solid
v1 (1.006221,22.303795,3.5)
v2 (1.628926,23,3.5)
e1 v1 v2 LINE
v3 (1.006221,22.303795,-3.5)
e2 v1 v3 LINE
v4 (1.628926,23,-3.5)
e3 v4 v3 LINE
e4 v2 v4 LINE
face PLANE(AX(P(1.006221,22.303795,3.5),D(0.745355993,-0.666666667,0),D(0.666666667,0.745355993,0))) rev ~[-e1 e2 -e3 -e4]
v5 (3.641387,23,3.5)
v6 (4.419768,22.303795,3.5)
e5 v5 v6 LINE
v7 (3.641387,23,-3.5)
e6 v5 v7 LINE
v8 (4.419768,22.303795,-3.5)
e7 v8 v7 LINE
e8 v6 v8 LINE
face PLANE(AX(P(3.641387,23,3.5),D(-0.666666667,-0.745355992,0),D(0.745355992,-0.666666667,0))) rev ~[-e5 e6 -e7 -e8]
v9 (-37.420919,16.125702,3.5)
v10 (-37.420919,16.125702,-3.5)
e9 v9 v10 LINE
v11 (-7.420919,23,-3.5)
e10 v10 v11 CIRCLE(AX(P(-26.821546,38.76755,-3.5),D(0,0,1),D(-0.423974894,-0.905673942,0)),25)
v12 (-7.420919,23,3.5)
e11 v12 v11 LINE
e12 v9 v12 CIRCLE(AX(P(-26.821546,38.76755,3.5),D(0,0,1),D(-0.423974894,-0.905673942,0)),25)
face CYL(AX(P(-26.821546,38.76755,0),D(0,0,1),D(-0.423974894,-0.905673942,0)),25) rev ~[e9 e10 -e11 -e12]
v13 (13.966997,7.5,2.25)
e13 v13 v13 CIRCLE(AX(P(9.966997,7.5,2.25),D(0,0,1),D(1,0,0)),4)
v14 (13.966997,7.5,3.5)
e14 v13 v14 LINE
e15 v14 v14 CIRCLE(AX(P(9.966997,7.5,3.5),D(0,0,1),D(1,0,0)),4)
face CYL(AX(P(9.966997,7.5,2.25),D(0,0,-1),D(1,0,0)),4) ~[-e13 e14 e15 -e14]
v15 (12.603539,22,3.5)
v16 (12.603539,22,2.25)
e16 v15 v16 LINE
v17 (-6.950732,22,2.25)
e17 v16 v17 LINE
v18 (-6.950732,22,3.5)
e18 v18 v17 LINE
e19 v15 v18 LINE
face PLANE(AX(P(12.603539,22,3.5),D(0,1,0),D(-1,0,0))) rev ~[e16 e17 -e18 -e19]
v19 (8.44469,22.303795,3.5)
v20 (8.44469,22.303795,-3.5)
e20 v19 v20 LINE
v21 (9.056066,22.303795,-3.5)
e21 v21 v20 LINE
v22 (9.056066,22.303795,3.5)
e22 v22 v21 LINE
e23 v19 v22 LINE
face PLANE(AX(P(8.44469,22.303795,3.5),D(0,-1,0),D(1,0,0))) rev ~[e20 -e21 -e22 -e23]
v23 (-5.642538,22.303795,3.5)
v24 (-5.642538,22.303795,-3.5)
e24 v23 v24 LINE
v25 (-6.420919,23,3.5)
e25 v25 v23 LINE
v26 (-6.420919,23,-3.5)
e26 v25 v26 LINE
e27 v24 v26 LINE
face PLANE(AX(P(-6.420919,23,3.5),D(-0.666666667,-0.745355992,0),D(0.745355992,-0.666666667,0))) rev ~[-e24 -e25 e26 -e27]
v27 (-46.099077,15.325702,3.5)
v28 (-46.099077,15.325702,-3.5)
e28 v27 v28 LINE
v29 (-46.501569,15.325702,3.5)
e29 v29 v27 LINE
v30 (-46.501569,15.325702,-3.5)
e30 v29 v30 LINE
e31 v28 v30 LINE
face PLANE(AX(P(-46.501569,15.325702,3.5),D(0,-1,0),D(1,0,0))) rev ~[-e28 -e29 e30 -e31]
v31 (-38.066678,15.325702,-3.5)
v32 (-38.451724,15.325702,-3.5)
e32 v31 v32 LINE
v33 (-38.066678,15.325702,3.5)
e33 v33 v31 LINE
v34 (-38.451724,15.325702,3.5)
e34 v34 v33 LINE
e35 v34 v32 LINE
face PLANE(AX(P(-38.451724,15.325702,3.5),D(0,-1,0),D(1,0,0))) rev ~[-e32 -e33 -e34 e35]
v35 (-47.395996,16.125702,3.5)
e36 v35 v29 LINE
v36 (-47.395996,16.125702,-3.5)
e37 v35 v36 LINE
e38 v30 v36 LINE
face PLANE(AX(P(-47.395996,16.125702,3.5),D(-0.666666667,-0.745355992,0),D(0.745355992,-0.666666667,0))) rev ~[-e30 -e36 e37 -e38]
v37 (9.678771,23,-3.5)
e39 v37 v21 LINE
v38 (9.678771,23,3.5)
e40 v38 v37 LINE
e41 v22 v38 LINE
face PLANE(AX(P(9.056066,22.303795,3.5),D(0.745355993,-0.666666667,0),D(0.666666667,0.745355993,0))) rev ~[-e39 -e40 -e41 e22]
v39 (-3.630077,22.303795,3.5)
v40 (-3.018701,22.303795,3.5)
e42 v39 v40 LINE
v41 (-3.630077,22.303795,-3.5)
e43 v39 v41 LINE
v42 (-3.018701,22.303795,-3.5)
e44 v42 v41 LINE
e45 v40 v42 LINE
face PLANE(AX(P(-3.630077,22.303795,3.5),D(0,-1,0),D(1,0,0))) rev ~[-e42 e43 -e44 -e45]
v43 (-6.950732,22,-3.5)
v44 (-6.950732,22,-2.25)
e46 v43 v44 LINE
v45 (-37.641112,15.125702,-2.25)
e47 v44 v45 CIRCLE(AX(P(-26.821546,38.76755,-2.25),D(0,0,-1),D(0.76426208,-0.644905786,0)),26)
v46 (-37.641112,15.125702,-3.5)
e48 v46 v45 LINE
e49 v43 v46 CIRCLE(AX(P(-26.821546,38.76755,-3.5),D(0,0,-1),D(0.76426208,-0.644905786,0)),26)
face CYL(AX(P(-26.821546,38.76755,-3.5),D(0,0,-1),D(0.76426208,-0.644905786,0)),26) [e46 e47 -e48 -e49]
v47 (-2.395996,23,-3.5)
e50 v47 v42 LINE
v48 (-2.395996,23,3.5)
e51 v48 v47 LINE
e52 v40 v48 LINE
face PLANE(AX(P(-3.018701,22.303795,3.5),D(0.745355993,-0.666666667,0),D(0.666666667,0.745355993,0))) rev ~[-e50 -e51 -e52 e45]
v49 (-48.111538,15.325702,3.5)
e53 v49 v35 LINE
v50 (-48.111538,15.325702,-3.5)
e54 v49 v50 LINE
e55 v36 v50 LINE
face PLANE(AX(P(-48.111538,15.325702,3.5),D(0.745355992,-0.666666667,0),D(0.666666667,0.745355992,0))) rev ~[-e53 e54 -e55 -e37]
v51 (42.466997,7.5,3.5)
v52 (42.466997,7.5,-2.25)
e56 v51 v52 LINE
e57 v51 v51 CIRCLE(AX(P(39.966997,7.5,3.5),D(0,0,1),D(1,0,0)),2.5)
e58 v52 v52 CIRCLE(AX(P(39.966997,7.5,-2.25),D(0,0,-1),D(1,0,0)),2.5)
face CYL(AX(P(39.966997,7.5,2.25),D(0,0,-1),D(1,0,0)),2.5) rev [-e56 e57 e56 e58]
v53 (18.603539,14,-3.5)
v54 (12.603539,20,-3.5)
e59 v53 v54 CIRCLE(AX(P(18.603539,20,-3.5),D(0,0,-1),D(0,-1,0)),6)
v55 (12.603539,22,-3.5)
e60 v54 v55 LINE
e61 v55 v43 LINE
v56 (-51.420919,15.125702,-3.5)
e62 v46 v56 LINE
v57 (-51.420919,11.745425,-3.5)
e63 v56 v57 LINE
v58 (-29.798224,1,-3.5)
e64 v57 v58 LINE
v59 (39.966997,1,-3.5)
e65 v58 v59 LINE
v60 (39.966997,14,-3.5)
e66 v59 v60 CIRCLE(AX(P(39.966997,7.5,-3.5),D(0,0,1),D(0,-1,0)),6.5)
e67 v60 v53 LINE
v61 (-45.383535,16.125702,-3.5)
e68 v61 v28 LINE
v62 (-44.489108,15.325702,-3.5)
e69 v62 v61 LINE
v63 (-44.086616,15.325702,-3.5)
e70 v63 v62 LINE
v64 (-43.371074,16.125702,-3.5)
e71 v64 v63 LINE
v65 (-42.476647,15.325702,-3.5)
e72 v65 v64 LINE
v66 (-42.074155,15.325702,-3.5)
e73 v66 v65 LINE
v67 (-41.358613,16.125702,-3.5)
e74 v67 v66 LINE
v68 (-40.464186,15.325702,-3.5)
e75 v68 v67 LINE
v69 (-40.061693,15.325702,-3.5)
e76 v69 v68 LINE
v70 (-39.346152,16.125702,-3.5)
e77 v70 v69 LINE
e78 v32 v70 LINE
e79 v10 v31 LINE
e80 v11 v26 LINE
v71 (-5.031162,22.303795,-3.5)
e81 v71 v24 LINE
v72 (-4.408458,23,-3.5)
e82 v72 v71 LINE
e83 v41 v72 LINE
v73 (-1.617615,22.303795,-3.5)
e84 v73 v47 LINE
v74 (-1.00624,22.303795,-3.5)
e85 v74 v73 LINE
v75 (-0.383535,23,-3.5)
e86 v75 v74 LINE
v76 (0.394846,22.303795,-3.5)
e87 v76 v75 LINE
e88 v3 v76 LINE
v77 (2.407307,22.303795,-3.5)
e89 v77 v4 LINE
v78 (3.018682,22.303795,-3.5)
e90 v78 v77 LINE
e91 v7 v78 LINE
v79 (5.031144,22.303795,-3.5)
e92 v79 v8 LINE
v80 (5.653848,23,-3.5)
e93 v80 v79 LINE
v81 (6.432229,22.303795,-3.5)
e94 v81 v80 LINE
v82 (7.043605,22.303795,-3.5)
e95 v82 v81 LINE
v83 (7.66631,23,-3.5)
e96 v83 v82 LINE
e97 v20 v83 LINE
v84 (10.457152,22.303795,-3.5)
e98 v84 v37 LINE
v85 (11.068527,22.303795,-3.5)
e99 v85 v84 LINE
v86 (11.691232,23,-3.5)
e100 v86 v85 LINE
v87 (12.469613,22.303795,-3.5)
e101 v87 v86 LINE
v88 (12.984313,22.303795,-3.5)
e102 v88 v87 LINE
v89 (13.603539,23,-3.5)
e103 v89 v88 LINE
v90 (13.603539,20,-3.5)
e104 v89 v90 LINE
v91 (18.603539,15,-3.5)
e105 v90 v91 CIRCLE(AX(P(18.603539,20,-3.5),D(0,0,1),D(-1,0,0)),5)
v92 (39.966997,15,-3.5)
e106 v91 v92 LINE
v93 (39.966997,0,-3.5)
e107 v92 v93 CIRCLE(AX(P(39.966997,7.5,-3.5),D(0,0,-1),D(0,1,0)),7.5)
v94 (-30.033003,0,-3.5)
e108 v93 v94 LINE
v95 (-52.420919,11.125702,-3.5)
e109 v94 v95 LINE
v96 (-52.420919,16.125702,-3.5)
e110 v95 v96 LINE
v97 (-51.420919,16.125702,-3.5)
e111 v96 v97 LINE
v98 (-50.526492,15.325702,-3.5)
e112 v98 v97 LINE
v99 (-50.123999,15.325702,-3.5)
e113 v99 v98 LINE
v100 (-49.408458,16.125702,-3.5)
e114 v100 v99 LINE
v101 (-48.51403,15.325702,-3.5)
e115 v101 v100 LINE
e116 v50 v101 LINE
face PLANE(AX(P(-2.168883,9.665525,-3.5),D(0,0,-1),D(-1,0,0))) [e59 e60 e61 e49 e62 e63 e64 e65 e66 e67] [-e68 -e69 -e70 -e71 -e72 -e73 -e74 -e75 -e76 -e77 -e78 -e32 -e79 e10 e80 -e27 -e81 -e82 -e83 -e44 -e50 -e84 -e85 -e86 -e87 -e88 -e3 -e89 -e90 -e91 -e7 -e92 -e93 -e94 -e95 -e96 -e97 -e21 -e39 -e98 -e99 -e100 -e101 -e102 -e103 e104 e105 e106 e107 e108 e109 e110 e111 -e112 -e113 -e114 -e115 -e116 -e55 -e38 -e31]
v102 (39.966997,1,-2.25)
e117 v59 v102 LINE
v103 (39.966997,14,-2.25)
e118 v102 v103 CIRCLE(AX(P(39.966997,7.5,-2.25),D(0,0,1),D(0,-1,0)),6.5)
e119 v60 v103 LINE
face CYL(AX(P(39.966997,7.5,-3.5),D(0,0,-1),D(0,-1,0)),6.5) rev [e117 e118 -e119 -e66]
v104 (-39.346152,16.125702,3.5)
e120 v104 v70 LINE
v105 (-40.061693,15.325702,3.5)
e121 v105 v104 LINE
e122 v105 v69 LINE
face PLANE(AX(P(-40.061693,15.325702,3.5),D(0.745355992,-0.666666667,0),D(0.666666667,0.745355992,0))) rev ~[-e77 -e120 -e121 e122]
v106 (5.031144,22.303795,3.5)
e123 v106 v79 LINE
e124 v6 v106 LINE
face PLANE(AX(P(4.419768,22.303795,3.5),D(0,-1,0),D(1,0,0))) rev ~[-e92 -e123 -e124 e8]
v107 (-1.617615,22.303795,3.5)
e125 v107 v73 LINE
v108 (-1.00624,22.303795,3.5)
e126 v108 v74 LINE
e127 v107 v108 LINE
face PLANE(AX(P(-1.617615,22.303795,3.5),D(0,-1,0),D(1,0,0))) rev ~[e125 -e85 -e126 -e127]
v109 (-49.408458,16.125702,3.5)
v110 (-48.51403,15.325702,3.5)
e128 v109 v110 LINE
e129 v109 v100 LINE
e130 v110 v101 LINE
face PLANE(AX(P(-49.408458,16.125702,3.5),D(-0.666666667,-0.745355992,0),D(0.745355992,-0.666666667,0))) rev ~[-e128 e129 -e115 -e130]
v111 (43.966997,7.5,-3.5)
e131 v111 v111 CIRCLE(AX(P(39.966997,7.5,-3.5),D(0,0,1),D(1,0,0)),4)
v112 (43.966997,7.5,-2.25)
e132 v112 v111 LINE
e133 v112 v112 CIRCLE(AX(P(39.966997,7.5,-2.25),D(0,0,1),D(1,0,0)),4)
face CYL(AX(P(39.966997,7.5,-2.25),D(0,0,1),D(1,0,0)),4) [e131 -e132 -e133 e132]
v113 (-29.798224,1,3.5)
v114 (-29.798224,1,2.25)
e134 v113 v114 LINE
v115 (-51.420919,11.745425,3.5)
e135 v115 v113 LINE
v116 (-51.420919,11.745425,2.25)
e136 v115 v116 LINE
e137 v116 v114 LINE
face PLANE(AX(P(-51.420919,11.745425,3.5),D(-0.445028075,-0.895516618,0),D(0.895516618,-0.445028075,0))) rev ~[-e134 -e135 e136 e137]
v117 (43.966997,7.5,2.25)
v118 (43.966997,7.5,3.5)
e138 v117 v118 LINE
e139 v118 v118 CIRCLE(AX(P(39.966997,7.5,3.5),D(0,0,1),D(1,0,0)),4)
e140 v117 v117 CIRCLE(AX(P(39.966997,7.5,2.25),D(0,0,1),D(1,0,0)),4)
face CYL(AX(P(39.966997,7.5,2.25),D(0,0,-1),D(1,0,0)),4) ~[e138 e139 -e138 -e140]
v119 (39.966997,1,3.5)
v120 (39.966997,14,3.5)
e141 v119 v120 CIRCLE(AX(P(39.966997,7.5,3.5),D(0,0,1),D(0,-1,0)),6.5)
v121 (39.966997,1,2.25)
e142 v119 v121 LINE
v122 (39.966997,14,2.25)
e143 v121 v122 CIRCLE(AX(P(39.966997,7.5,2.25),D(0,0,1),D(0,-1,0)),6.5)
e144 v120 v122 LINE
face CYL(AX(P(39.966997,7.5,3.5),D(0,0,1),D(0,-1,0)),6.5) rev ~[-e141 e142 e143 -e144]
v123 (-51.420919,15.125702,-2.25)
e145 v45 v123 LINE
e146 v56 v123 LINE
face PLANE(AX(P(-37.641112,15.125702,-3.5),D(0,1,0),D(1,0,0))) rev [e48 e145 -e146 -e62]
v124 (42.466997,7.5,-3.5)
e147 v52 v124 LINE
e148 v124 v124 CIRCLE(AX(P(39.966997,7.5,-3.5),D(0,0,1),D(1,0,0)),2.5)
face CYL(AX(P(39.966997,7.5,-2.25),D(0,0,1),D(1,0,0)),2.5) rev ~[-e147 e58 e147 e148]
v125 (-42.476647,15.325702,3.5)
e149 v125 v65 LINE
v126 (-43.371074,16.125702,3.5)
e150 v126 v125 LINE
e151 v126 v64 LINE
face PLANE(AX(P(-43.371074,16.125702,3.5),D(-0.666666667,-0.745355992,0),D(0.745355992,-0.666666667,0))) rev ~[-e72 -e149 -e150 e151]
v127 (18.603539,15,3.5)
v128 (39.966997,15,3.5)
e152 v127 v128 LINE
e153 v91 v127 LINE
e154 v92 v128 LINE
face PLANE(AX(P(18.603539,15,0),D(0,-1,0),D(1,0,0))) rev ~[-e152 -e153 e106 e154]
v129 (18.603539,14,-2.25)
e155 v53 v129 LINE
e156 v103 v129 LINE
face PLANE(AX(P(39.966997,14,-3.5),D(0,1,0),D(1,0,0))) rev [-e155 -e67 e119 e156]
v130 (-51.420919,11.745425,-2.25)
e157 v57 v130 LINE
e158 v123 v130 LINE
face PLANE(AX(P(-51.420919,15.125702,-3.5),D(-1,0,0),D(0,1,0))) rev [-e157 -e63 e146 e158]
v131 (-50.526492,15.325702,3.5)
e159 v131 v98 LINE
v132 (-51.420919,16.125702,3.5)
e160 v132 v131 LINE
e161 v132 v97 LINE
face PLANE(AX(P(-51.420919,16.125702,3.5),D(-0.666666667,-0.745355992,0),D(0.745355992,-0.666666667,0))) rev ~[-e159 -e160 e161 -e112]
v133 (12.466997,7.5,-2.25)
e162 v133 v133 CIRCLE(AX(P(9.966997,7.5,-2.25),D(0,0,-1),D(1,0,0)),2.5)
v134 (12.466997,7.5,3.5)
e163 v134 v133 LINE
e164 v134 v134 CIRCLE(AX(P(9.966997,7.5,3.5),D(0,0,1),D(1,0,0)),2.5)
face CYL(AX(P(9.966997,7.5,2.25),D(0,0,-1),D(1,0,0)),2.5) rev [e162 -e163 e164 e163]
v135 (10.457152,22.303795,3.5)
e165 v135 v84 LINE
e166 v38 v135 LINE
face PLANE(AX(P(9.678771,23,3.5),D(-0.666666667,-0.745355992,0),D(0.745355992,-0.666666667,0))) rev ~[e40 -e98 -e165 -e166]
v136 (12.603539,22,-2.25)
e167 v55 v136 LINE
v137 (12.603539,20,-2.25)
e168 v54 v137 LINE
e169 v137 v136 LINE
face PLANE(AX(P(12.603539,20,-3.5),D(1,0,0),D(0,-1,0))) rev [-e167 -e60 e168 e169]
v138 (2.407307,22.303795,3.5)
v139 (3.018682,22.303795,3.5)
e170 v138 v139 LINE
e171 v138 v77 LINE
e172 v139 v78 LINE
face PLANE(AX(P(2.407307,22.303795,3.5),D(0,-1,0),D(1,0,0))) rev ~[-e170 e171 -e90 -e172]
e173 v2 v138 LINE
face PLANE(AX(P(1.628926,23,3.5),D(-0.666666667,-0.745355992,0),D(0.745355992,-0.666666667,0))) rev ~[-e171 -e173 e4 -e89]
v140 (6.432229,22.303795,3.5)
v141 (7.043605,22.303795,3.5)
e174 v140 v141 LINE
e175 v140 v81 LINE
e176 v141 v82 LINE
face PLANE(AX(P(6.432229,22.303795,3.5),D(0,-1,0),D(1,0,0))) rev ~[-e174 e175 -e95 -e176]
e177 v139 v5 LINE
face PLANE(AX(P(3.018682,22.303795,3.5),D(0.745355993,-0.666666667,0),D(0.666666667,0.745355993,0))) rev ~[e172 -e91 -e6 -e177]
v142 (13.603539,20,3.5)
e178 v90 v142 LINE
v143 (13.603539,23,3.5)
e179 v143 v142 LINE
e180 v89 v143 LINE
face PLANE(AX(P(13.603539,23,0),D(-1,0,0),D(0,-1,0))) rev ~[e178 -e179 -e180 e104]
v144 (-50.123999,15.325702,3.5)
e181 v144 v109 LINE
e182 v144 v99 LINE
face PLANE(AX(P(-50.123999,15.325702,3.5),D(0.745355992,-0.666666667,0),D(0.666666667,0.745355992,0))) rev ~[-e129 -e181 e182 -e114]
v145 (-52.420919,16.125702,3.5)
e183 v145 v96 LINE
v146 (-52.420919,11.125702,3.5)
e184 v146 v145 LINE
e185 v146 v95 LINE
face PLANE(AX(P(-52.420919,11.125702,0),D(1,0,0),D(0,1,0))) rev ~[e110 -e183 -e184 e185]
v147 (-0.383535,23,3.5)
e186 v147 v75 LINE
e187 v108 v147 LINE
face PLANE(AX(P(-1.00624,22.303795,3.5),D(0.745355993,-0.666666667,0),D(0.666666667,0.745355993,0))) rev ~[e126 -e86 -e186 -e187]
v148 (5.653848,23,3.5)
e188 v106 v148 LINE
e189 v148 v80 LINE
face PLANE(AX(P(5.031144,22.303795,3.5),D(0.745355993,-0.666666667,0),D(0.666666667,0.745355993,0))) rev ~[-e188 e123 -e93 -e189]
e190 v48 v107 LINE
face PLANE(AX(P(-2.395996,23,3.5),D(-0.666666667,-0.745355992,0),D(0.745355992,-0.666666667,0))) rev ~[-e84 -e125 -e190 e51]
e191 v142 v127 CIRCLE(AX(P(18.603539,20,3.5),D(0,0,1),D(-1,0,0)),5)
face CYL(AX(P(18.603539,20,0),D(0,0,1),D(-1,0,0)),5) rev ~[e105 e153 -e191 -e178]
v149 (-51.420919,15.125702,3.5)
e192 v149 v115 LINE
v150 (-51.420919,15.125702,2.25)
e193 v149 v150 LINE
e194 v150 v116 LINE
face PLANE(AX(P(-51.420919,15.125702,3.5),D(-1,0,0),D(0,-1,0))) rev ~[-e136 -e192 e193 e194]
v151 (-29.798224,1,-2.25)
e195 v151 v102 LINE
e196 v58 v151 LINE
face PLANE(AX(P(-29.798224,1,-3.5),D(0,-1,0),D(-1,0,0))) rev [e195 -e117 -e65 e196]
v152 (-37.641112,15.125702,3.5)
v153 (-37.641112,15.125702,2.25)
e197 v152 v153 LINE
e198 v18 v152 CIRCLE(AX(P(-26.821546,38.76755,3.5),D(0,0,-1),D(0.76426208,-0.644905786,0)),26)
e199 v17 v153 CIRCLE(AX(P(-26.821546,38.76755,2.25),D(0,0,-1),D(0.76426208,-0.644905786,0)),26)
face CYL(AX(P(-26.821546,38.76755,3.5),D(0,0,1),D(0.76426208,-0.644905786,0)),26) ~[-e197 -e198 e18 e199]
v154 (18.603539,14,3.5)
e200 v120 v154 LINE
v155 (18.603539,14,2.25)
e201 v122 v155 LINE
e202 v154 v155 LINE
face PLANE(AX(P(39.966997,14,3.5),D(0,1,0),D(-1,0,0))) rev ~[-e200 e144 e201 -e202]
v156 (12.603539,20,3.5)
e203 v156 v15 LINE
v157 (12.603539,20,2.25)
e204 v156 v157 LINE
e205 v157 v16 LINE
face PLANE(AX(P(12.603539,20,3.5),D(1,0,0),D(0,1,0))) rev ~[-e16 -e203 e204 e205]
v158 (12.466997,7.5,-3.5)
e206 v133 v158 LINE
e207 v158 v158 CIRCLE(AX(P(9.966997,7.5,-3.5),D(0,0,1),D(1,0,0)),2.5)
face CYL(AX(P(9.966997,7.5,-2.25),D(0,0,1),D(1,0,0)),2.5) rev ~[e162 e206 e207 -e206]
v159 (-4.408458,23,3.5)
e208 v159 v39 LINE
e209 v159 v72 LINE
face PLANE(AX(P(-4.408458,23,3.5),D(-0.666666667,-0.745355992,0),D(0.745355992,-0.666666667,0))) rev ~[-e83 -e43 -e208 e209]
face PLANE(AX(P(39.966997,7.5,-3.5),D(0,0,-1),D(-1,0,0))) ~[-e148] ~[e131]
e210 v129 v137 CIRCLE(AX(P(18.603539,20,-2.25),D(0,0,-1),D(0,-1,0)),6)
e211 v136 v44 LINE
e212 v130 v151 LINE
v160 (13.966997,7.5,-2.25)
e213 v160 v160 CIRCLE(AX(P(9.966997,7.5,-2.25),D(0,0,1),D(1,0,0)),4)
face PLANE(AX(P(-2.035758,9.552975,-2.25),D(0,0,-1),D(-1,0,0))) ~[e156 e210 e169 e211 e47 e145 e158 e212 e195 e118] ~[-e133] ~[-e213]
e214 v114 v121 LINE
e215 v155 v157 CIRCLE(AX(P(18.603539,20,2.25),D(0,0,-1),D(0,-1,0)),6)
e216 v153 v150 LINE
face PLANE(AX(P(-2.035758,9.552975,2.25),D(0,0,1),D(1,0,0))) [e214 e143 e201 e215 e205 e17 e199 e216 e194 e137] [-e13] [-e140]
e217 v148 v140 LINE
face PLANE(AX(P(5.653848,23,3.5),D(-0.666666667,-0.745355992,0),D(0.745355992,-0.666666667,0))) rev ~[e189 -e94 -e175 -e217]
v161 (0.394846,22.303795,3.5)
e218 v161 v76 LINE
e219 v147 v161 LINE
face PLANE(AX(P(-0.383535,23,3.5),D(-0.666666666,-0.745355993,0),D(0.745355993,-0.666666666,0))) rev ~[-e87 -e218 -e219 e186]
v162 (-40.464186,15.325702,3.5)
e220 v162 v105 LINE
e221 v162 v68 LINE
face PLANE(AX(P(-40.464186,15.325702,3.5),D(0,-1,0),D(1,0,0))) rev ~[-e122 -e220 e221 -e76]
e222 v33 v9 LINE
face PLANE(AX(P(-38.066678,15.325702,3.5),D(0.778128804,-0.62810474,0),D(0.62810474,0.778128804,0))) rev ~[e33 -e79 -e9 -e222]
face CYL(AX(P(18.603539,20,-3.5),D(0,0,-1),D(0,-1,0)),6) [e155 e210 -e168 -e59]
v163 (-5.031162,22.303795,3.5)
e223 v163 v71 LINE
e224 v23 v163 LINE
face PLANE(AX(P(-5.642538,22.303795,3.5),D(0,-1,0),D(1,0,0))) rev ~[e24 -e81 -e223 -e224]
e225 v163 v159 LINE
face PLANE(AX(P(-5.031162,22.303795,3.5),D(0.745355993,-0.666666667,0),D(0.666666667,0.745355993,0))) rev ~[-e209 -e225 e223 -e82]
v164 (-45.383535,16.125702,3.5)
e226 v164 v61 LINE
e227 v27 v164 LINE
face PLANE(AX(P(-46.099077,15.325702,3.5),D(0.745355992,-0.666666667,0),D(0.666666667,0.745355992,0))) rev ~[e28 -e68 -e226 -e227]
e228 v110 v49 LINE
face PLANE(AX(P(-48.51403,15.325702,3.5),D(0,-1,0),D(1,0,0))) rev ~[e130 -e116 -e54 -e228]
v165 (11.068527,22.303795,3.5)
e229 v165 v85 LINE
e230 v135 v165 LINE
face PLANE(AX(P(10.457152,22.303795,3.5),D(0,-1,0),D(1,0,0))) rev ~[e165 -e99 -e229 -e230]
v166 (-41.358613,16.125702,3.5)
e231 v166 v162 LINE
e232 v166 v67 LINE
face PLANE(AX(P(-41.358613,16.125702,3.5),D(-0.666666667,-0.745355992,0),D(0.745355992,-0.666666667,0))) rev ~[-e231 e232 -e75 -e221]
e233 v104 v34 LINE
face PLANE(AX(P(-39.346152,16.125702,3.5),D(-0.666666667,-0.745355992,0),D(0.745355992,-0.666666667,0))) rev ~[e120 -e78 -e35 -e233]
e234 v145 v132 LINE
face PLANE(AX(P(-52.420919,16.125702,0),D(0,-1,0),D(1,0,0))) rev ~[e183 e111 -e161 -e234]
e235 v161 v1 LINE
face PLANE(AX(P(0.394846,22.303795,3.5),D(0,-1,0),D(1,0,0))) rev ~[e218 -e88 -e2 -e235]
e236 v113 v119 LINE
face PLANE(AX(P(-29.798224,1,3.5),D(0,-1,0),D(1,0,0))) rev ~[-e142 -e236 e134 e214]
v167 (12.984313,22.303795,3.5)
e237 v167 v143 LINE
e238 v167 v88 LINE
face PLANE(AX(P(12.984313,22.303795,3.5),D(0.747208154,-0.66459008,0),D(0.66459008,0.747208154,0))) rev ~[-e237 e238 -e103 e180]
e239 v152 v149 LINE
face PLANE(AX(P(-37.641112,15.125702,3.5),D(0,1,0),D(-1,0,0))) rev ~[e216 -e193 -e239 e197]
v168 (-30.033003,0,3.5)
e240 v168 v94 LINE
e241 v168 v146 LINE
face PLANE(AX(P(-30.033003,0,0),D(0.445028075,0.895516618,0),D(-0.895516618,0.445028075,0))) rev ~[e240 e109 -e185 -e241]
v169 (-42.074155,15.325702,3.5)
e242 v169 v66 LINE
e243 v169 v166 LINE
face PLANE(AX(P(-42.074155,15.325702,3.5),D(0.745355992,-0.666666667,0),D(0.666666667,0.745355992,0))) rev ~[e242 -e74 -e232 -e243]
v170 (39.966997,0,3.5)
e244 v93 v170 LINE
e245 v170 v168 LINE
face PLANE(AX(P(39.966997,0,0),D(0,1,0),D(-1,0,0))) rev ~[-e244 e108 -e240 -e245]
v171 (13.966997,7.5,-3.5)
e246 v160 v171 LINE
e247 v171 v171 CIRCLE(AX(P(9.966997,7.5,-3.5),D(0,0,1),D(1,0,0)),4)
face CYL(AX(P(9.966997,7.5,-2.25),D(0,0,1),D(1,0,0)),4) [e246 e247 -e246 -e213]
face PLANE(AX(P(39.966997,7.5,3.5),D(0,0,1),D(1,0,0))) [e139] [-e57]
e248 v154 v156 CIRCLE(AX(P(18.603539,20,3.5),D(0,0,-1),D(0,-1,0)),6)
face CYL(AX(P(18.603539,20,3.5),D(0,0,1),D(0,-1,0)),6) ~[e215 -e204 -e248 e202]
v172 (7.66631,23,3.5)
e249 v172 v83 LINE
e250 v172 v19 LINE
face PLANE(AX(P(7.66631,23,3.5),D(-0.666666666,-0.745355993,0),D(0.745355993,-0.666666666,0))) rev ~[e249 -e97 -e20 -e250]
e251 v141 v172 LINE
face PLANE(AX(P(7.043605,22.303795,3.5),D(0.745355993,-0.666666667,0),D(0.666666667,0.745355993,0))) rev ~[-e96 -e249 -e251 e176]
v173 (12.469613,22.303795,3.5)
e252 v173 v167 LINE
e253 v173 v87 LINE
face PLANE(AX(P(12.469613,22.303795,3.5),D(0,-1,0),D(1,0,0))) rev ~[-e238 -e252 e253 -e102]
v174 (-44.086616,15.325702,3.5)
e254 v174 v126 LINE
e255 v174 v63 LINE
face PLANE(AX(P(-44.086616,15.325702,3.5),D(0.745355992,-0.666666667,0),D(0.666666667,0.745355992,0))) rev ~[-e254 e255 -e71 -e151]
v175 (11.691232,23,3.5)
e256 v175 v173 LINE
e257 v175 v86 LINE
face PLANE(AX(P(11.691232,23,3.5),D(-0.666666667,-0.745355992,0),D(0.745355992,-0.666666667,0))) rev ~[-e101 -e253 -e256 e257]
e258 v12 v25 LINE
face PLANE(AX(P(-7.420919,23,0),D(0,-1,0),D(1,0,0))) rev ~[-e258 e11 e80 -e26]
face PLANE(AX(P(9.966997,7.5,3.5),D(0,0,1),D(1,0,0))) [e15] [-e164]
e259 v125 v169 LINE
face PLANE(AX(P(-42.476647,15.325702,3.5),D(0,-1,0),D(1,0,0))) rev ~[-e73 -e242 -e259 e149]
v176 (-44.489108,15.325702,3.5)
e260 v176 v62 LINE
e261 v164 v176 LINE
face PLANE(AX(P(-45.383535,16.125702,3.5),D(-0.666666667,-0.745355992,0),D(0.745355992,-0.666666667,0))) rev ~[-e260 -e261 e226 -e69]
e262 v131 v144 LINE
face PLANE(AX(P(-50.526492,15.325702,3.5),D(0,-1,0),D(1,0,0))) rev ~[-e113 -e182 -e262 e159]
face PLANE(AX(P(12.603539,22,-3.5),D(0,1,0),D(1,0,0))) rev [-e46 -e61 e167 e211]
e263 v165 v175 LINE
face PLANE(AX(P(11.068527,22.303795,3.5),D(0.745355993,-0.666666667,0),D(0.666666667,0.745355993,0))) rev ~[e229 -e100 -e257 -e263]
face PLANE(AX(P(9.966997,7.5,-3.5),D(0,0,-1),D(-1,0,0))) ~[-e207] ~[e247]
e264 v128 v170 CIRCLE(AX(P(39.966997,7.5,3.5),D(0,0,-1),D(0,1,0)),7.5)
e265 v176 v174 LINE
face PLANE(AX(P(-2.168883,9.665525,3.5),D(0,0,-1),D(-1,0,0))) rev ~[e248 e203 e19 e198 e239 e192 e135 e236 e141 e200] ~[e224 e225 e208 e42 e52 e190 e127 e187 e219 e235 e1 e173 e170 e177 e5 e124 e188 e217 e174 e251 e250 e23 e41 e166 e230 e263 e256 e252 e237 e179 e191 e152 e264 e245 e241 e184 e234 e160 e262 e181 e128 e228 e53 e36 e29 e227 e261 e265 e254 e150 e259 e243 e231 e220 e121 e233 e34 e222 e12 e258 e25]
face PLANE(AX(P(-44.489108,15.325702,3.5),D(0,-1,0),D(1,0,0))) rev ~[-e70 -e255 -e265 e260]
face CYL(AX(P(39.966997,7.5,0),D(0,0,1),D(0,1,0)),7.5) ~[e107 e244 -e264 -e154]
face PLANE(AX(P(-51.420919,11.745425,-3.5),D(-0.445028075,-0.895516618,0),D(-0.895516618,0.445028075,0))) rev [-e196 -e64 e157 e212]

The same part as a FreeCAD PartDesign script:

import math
import FreeCAD as App
import Part
import Sketcher
from FreeCAD import Vector

doc = App.newDocument("Part")
body = doc.addObject("PartDesign::Body", "Body")

# Sketch on XY plane
sketch1 = body.newObject("Sketcher::SketchObject", "Sketch")
sketch1.AttachmentSupport = (doc.getObject("XY_Plane"), [""])
sketch1.MapMode = "FlatFace"
sketch1.addGeometry(Part.LineSegment(Vector(-30, 0, 0), Vector(40, 0, 0)), False)
sketch1.addGeometry(Part.ArcOfCircle(Part.Circle(Vector(40, 7.5, 0), Vector(0, 0, 1), 7.5), math.radians(-90), math.radians(90)), False)
sketch1.addGeometry(Part.LineSegment(Vector(40, 15, 0), Vector(18.6, 15, 0)), False)
sketch1.addGeometry(Part.ArcOfCircle(Part.Circle(Vector(18.6, 20, 0), Vector(0, 0, 1), 5), math.radians(180), math.radians(270)), False)
sketch1.addGeometry(Part.LineSegment(Vector(13.6, 20, 0), Vector(13.6, 23, 0)), False)
sketch1.addGeometry(Part.LineSegment(Vector(13.6, 23, 0), Vector(-7.4, 23, 0)), False)
sketch1.addGeometry(Part.ArcOfCircle(Part.Circle(Vector(-26.8, 38.8, 0), Vector(0, 0, 1), 25), math.radians(-115), math.radians(-39)), False)
sketch1.addGeometry(Part.LineSegment(Vector(-37.4, 16.1, 0), Vector(-52.4, 16.1, 0)), False)
sketch1.addGeometry(Part.LineSegment(Vector(-52.4, 16.1, 0), Vector(-52.4, 11.1, 0)), False)
sketch1.addGeometry(Part.LineSegment(Vector(-52.4, 11.1, 0), Vector(-30, 0, 0)), False)
sketch1.addGeometry(Part.Circle(Vector(40, 7.5, 0), Vector(0, 0, 1), 2.5), False)
sketch1.addGeometry(Part.Circle(Vector(10, 7.5, 0), Vector(0, 0, 1), 2.5), False)
sketch1.addConstraint(Sketcher.Constraint("Tangent", 0, 2, 1, 1))
sketch1.addConstraint(Sketcher.Constraint("Tangent", 1, 2, 2, 1))
sketch1.addConstraint(Sketcher.Constraint("Tangent", 2, 2, 3, 2))
sketch1.addConstraint(Sketcher.Constraint("Tangent", 3, 1, 4, 1))
sketch1.addConstraint(Sketcher.Constraint("Coincident", 4, 2, 5, 1))
sketch1.addConstraint(Sketcher.Constraint("Coincident", 5, 2, 6, 2))
sketch1.addConstraint(Sketcher.Constraint("Coincident", 6, 1, 7, 1))
sketch1.addConstraint(Sketcher.Constraint("Coincident", 7, 2, 8, 1))
sketch1.addConstraint(Sketcher.Constraint("Coincident", 8, 2, 9, 1))
sketch1.addConstraint(Sketcher.Constraint("Coincident", 9, 2, 0, 1))
sketch1.addConstraint(Sketcher.Constraint("Horizontal", 0))
sketch1.addConstraint(Sketcher.Constraint("Horizontal", 2))
sketch1.addConstraint(Sketcher.Constraint("Vertical", 4))
sketch1.addConstraint(Sketcher.Constraint("Horizontal", 5))
sketch1.addConstraint(Sketcher.Constraint("Horizontal", 7))
sketch1.addConstraint(Sketcher.Constraint("Vertical", 8))
sketch1.addConstraint(Sketcher.Constraint("Coincident", 10, 3, 1, 3))
sketch1.addConstraint(Sketcher.Constraint("Equal", 10, 11))
sketch1.addConstraint(Sketcher.Constraint("PointOnObject", 0, 2, -1))
sketch1.addConstraint(Sketcher.Constraint("Horizontal", 10, 3, 11, 3))
sketch1.addConstraint(Sketcher.Constraint("Diameter", 10, 5.0))
sketch1.addConstraint(Sketcher.Constraint("Radius", 3, 5.0))
sketch1.addConstraint(Sketcher.Constraint("Radius", 6, 25.0))
sketch1.addConstraint(Sketcher.Constraint("Radius", 1, 7.5))
sketch1.addConstraint(Sketcher.Constraint("DistanceX", 0, 1, 0, 2, 70.0))
sketch1.addConstraint(Sketcher.Constraint("DistanceX", 7, 2, 7, 1, 15.0))
sketch1.addConstraint(Sketcher.Constraint("DistanceY", 4, 1, 4, 2, 3.0))
sketch1.addConstraint(Sketcher.Constraint("DistanceY", 8, 2, 8, 1, 5.0))
sketch1.addConstraint(Sketcher.Constraint("Distance", 9, 25.0))
sketch1.addConstraint(Sketcher.Constraint("DistanceX", 11, 3, 1, 3, 30.0))
sketch1.addConstraint(Sketcher.Constraint("DistanceX", 6, 1, 5, 2, 30.0))
sketch1.addConstraint(Sketcher.Constraint("DistanceY", -1, 1, 6, 1, 16.125702))
sketch1.addConstraint(Sketcher.Constraint("DistanceX", 2, 2, 2, 1, 21.363458))
sketch1.addConstraint(Sketcher.Constraint("DistanceX", -1, 1, 3, 3, 18.603539))
pad1 = body.newObject("PartDesign::Pad", "Pad")
pad1.Profile = sketch1
pad1.Length = 7
pad1.Midplane = True

# Sketch on XY plane
sketch2 = body.newObject("Sketcher::SketchObject", "Sketch001")
sketch2.AttachmentSupport = (doc.getObject("XY_Plane"), [""])
sketch2.MapMode = "FlatFace"
sketch2.AttachmentOffset = App.Placement(Vector(0, 0, 3.5), App.Rotation())
sketch2.addGeometry(Part.LineSegment(Vector(40, 14, 0), Vector(18.6, 14, 0)), False)
sketch2.addGeometry(Part.ArcOfCircle(Part.Circle(Vector(18.6, 20, 0), Vector(0, 0, 1), 6), math.radians(180), math.radians(270)), False)
sketch2.addGeometry(Part.LineSegment(Vector(12.6, 20, 0), Vector(12.6, 22, 0)), False)
sketch2.addGeometry(Part.LineSegment(Vector(12.6, 22, 0), Vector(-7, 22, 0)), False)
sketch2.addGeometry(Part.ArcOfCircle(Part.Circle(Vector(-26.8, 38.8, 0), Vector(0, 0, 1), 26), math.radians(-115), math.radians(-40)), False)
sketch2.addGeometry(Part.LineSegment(Vector(-37.6, 15.1, 0), Vector(-51.4, 15.1, 0)), False)
sketch2.addGeometry(Part.LineSegment(Vector(-51.4, 15.1, 0), Vector(-51.4, 11.7, 0)), False)
sketch2.addGeometry(Part.LineSegment(Vector(-51.4, 11.7, 0), Vector(-29.8, 1, 0)), False)
sketch2.addGeometry(Part.LineSegment(Vector(-29.8, 1, 0), Vector(40, 1, 0)), False)
sketch2.addGeometry(Part.ArcOfCircle(Part.Circle(Vector(40, 7.5, 0), Vector(0, 0, 1), 6.5), math.radians(-90), math.radians(90)), False)
sketch2.addConstraint(Sketcher.Constraint("Tangent", 0, 2, 1, 2))
sketch2.addConstraint(Sketcher.Constraint("Tangent", 1, 1, 2, 1))
sketch2.addConstraint(Sketcher.Constraint("Coincident", 2, 2, 3, 1))
sketch2.addConstraint(Sketcher.Constraint("Coincident", 3, 2, 4, 2))
sketch2.addConstraint(Sketcher.Constraint("Coincident", 4, 1, 5, 1))
sketch2.addConstraint(Sketcher.Constraint("Coincident", 5, 2, 6, 1))
sketch2.addConstraint(Sketcher.Constraint("Coincident", 6, 2, 7, 1))
sketch2.addConstraint(Sketcher.Constraint("Coincident", 7, 2, 8, 1))
sketch2.addConstraint(Sketcher.Constraint("Tangent", 8, 2, 9, 1))
sketch2.addConstraint(Sketcher.Constraint("Tangent", 9, 2, 0, 1))
sketch2.addConstraint(Sketcher.Constraint("Horizontal", 0))
sketch2.addConstraint(Sketcher.Constraint("Vertical", 2))
sketch2.addConstraint(Sketcher.Constraint("Horizontal", 3))
sketch2.addConstraint(Sketcher.Constraint("Horizontal", 5))
sketch2.addConstraint(Sketcher.Constraint("Vertical", 6))
sketch2.addConstraint(Sketcher.Constraint("Horizontal", 8))
sketch2.addConstraint(Sketcher.Constraint("Radius", 1, 6.0))
sketch2.addConstraint(Sketcher.Constraint("Radius", 4, 26.0))
sketch2.addConstraint(Sketcher.Constraint("Radius", 9, 6.5))
sketch2.addConstraint(Sketcher.Constraint("DistanceY", 2, 1, 2, 2, 2.0))
sketch2.addConstraint(Sketcher.Constraint("DistanceY", -1, 1, 1, 3, 20.0))
sketch2.addConstraint(Sketcher.Constraint("Distance", 7, 24.145498))
sketch2.addConstraint(Sketcher.Constraint("DistanceX", 3, 2, 3, 1, 19.554271))
sketch2.addConstraint(Sketcher.Constraint("DistanceX", 8, 1, 8, 2, 69.765221))
sketch2.addConstraint(Sketcher.Constraint("DistanceY", -1, 1, 4, 1, 15.125702))
sketch2.addConstraint(Sketcher.Constraint("DistanceX", 0, 2, 0, 1, 21.363458))
sketch2.addConstraint(Sketcher.Constraint("DistanceX", 5, 2, 5, 1, 13.779807))
sketch2.addConstraint(Sketcher.Constraint("DistanceY", 6, 2, 6, 1, 3.380277))
sketch2.addConstraint(Sketcher.Constraint("DistanceX", -1, 1, 1, 3, 18.603539))
pocket1 = body.newObject("PartDesign::Pocket", "Pocket")
pocket1.Profile = sketch2
pocket1.Length = 1.25

# Sketch on XY plane
sketch3 = body.newObject("Sketcher::SketchObject", "Sketch002")
sketch3.AttachmentSupport = (doc.getObject("XY_Plane"), [""])
sketch3.MapMode = "FlatFace"
sketch3.AttachmentOffset = App.Placement(Vector(0, 0, 2.25), App.Rotation())
sketch3.addGeometry(Part.Circle(Vector(10, 7.5, 0), Vector(0, 0, 1), 4), False)
sketch3.addGeometry(Part.Circle(Vector(10, 7.5, 0), Vector(0, 0, 1), 2.5), False)
sketch3.addGeometry(Part.Circle(Vector(40, 7.5, 0), Vector(0, 0, 1), 4), False)
sketch3.addGeometry(Part.Circle(Vector(40, 7.5, 0), Vector(0, 0, 1), 2.5), False)
sketch3.addConstraint(Sketcher.Constraint("Coincident", 1, 3, 0, 3))
sketch3.addConstraint(Sketcher.Constraint("Coincident", 3, 3, 2, 3))
sketch3.addConstraint(Sketcher.Constraint("Equal", 0, 2))
sketch3.addConstraint(Sketcher.Constraint("Equal", 1, 3))
sketch3.addConstraint(Sketcher.Constraint("Horizontal", 1, 3, 2, 3))
sketch3.addConstraint(Sketcher.Constraint("Diameter", 0, 8.0))
sketch3.addConstraint(Sketcher.Constraint("Diameter", 1, 5.0))
sketch3.addConstraint(Sketcher.Constraint("DistanceX", 0, 3, 2, 3, 30.0))
sketch3.addConstraint(Sketcher.Constraint("DistanceY", -1, 1, 0, 3, 7.5))
sketch3.addConstraint(Sketcher.Constraint("DistanceX", -1, 1, 0, 3, 9.966997))
pad2 = body.newObject("PartDesign::Pad", "Pad001")
pad2.Profile = sketch3
pad2.Length = 1.25
doc.recompute()

mirrored = body.newObject("PartDesign::Mirrored", "Mirrored")
mirrored.Originals = [pocket1, pad2]
mirrored.MirrorPlane = (doc.getObject("XY_Plane"), [""])
body.Tip = mirrored

# Sketch on XY plane
sketch4 = body.newObject("Sketcher::SketchObject", "Sketch003")
sketch4.AttachmentSupport = (doc.getObject("XY_Plane"), [""])
sketch4.MapMode = "FlatFace"
sketch4.AttachmentOffset = App.Placement(Vector(0, 0, 3.5), App.Rotation())
sketch4.addGeometry(Part.LineSegment(Vector(-43.37, 16.13, 0), Vector(-45.38, 16.13, 0)), False)
sketch4.addGeometry(Part.LineSegment(Vector(-45.38, 16.13, 0), Vector(-44.49, 15.33, 0)), False)
sketch4.addGeometry(Part.LineSegment(Vector(-44.49, 15.33, 0), Vector(-44.09, 15.33, 0)), False)
sketch4.addGeometry(Part.LineSegment(Vector(-44.09, 15.33, 0), Vector(-43.37, 16.13, 0)), False)
sketch4.addGeometry(Part.LineSegment(Vector(-41.36, 16.13, 0), Vector(-43.37, 16.13, 0)), False)
sketch4.addGeometry(Part.LineSegment(Vector(-43.37, 16.13, 0), Vector(-42.48, 15.33, 0)), False)
sketch4.addGeometry(Part.LineSegment(Vector(-42.48, 15.33, 0), Vector(-42.07, 15.33, 0)), False)
sketch4.addGeometry(Part.LineSegment(Vector(-42.07, 15.33, 0), Vector(-41.36, 16.13, 0)), False)
sketch4.addGeometry(Part.LineSegment(Vector(-39.35, 16.13, 0), Vector(-41.36, 16.13, 0)), False)
sketch4.addGeometry(Part.LineSegment(Vector(-41.36, 16.13, 0), Vector(-40.46, 15.33, 0)), False)
sketch4.addGeometry(Part.LineSegment(Vector(-40.46, 15.33, 0), Vector(-40.06, 15.33, 0)), False)
sketch4.addGeometry(Part.LineSegment(Vector(-40.06, 15.33, 0), Vector(-39.35, 16.13, 0)), False)
sketch4.addGeometry(Part.LineSegment(Vector(-37.42, 16.13, 0), Vector(-39.35, 16.13, 0)), False)
sketch4.addGeometry(Part.LineSegment(Vector(-39.35, 16.13, 0), Vector(-38.45, 15.33, 0)), False)
sketch4.addGeometry(Part.LineSegment(Vector(-38.45, 15.33, 0), Vector(-38.07, 15.33, 0)), False)
sketch4.addGeometry(Part.LineSegment(Vector(-38.07, 15.33, 0), Vector(-37.42, 16.13, 0)), False)
sketch4.addGeometry(Part.LineSegment(Vector(-45.38, 16.13, 0), Vector(-47.4, 16.13, 0)), False)
sketch4.addGeometry(Part.LineSegment(Vector(-47.4, 16.13, 0), Vector(-46.5, 15.33, 0)), False)
sketch4.addGeometry(Part.LineSegment(Vector(-46.5, 15.33, 0), Vector(-46.1, 15.33, 0)), False)
sketch4.addGeometry(Part.LineSegment(Vector(-46.1, 15.33, 0), Vector(-45.38, 16.13, 0)), False)
sketch4.addGeometry(Part.LineSegment(Vector(-47.4, 16.13, 0), Vector(-49.41, 16.13, 0)), False)
sketch4.addGeometry(Part.LineSegment(Vector(-49.41, 16.13, 0), Vector(-48.51, 15.33, 0)), False)
sketch4.addGeometry(Part.LineSegment(Vector(-48.51, 15.33, 0), Vector(-48.11, 15.33, 0)), False)
sketch4.addGeometry(Part.LineSegment(Vector(-48.11, 15.33, 0), Vector(-47.4, 16.13, 0)), False)
sketch4.addGeometry(Part.LineSegment(Vector(-49.41, 16.13, 0), Vector(-51.42, 16.13, 0)), False)
sketch4.addGeometry(Part.LineSegment(Vector(-51.42, 16.13, 0), Vector(-50.53, 15.33, 0)), False)
sketch4.addGeometry(Part.LineSegment(Vector(-50.53, 15.33, 0), Vector(-50.12, 15.33, 0)), False)
sketch4.addGeometry(Part.LineSegment(Vector(-50.12, 15.33, 0), Vector(-49.41, 16.13, 0)), False)
sketch4.addConstraint(Sketcher.Constraint("Coincident", 0, 2, 1, 1))
sketch4.addConstraint(Sketcher.Constraint("Coincident", 1, 2, 2, 1))
sketch4.addConstraint(Sketcher.Constraint("Coincident", 2, 2, 3, 1))
sketch4.addConstraint(Sketcher.Constraint("Coincident", 3, 2, 0, 1))
sketch4.addConstraint(Sketcher.Constraint("Coincident", 4, 2, 5, 1))
sketch4.addConstraint(Sketcher.Constraint("Coincident", 5, 2, 6, 1))
sketch4.addConstraint(Sketcher.Constraint("Coincident", 6, 2, 7, 1))
sketch4.addConstraint(Sketcher.Constraint("Coincident", 7, 2, 4, 1))
sketch4.addConstraint(Sketcher.Constraint("Coincident", 8, 2, 9, 1))
sketch4.addConstraint(Sketcher.Constraint("Coincident", 9, 2, 10, 1))
sketch4.addConstraint(Sketcher.Constraint("Coincident", 10, 2, 11, 1))
sketch4.addConstraint(Sketcher.Constraint("Coincident", 11, 2, 8, 1))
sketch4.addConstraint(Sketcher.Constraint("Coincident", 12, 2, 13, 1))
sketch4.addConstraint(Sketcher.Constraint("Coincident", 13, 2, 14, 1))
sketch4.addConstraint(Sketcher.Constraint("Coincident", 14, 2, 15, 1))
sketch4.addConstraint(Sketcher.Constraint("Coincident", 15, 2, 12, 1))
sketch4.addConstraint(Sketcher.Constraint("Coincident", 16, 2, 17, 1))
sketch4.addConstraint(Sketcher.Constraint("Coincident", 17, 2, 18, 1))
sketch4.addConstraint(Sketcher.Constraint("Coincident", 18, 2, 19, 1))
sketch4.addConstraint(Sketcher.Constraint("Coincident", 19, 2, 16, 1))
sketch4.addConstraint(Sketcher.Constraint("Coincident", 20, 2, 21, 1))
sketch4.addConstraint(Sketcher.Constraint("Coincident", 21, 2, 22, 1))
sketch4.addConstraint(Sketcher.Constraint("Coincident", 22, 2, 23, 1))
sketch4.addConstraint(Sketcher.Constraint("Coincident", 23, 2, 20, 1))
sketch4.addConstraint(Sketcher.Constraint("Coincident", 24, 2, 25, 1))
sketch4.addConstraint(Sketcher.Constraint("Coincident", 25, 2, 26, 1))
sketch4.addConstraint(Sketcher.Constraint("Coincident", 26, 2, 27, 1))
sketch4.addConstraint(Sketcher.Constraint("Coincident", 27, 2, 24, 1))
sketch4.addConstraint(Sketcher.Constraint("Horizontal", 0))
sketch4.addConstraint(Sketcher.Constraint("Horizontal", 2))
sketch4.addConstraint(Sketcher.Constraint("Horizontal", 4))
sketch4.addConstraint(Sketcher.Constraint("Horizontal", 6))
sketch4.addConstraint(Sketcher.Constraint("Horizontal", 8))
sketch4.addConstraint(Sketcher.Constraint("Horizontal", 10))
sketch4.addConstraint(Sketcher.Constraint("Horizontal", 12))
sketch4.addConstraint(Sketcher.Constraint("Horizontal", 14))
sketch4.addConstraint(Sketcher.Constraint("Horizontal", 16))
sketch4.addConstraint(Sketcher.Constraint("Horizontal", 18))
sketch4.addConstraint(Sketcher.Constraint("Horizontal", 20))
sketch4.addConstraint(Sketcher.Constraint("Horizontal", 22))
sketch4.addConstraint(Sketcher.Constraint("Horizontal", 24))
sketch4.addConstraint(Sketcher.Constraint("Horizontal", 26))
sketch4.addConstraint(Sketcher.Constraint("Coincident", 4, 2, 3, 2))
sketch4.addConstraint(Sketcher.Constraint("Coincident", 8, 2, 7, 2))
sketch4.addConstraint(Sketcher.Constraint("Coincident", 12, 2, 11, 2))
sketch4.addConstraint(Sketcher.Constraint("Coincident", 19, 2, 0, 2))
sketch4.addConstraint(Sketcher.Constraint("Coincident", 23, 2, 16, 2))
sketch4.addConstraint(Sketcher.Constraint("Coincident", 27, 2, 20, 2))
sketch4.addConstraint(Sketcher.Constraint("Perpendicular", 1, 3))
sketch4.addConstraint(Sketcher.Constraint("Perpendicular", 3, 5))
sketch4.addConstraint(Sketcher.Constraint("Perpendicular", 5, 7))
sketch4.addConstraint(Sketcher.Constraint("Perpendicular", 7, 9))
sketch4.addConstraint(Sketcher.Constraint("Perpendicular", 9, 11))
sketch4.addConstraint(Sketcher.Constraint("Perpendicular", 11, 13))
sketch4.addConstraint(Sketcher.Constraint("Parallel", 13, 17))
sketch4.addConstraint(Sketcher.Constraint("Perpendicular", 17, 19))
sketch4.addConstraint(Sketcher.Constraint("Perpendicular", 19, 21))
sketch4.addConstraint(Sketcher.Constraint("Perpendicular", 21, 23))
sketch4.addConstraint(Sketcher.Constraint("Perpendicular", 23, 25))
sketch4.addConstraint(Sketcher.Constraint("Perpendicular", 25, 27))
sketch4.addConstraint(Sketcher.Constraint("Horizontal", 2, 2, 5, 2))
sketch4.addConstraint(Sketcher.Constraint("Horizontal", 6, 2, 9, 2))
sketch4.addConstraint(Sketcher.Constraint("Horizontal", 10, 2, 13, 2))
sketch4.addConstraint(Sketcher.Constraint("Horizontal", 14, 2, 17, 2))
sketch4.addConstraint(Sketcher.Constraint("Horizontal", 18, 2, 21, 2))
sketch4.addConstraint(Sketcher.Constraint("Horizontal", 22, 2, 25, 2))
sketch4.addConstraint(Sketcher.Constraint("Equal", 0, 4))
sketch4.addConstraint(Sketcher.Constraint("Equal", 4, 8))
sketch4.addConstraint(Sketcher.Constraint("Equal", 8, 16))
sketch4.addConstraint(Sketcher.Constraint("Equal", 16, 20))
sketch4.addConstraint(Sketcher.Constraint("Equal", 20, 24))
sketch4.addConstraint(Sketcher.Constraint("Distance", 1, 1.2))
sketch4.addConstraint(Sketcher.Constraint("DistanceY", 1, 2, 0, 2, 0.8))
sketch4.addConstraint(Sketcher.Constraint("DistanceX", 26, 2, -1, 1, 50.123999))
sketch4.addConstraint(Sketcher.Constraint("DistanceX", 0, 2, 0, 1, 2.012461))
sketch4.addConstraint(Sketcher.Constraint("DistanceY", -1, 1, 0, 2, 16.125702))
sketch4.addConstraint(Sketcher.Constraint("DistanceX", 12, 2, 12, 1, 1.925233))
sketch4.addConstraint(Sketcher.Constraint("DistanceX", 14, 1, 14, 2, 0.385047))
pocket2 = body.newObject("PartDesign::Pocket", "Pocket001")
pocket2.Profile = sketch4
pocket2.Type = "ThroughAll"

# Sketch on XY plane
sketch5 = body.newObject("Sketcher::SketchObject", "Sketch004")
sketch5.AttachmentSupport = (doc.getObject("XY_Plane"), [""])
sketch5.MapMode = "FlatFace"
sketch5.AttachmentOffset = App.Placement(Vector(0, 0, 3.5), App.Rotation())
sketch5.addGeometry(Part.LineSegment(Vector(-4.4, 23, 0), Vector(-6.4, 23, 0)), False)
sketch5.addGeometry(Part.LineSegment(Vector(-6.4, 23, 0), Vector(-5.6, 22.3, 0)), False)
sketch5.addGeometry(Part.LineSegment(Vector(-5.6, 22.3, 0), Vector(-5, 22.3, 0)), False)
sketch5.addGeometry(Part.LineSegment(Vector(-5, 22.3, 0), Vector(-4.4, 23, 0)), False)
sketch5.addGeometry(Part.LineSegment(Vector(-2.4, 23, 0), Vector(-4.4, 23, 0)), False)
sketch5.addGeometry(Part.LineSegment(Vector(-4.4, 23, 0), Vector(-3.6, 22.3, 0)), False)
sketch5.addGeometry(Part.LineSegment(Vector(-3.6, 22.3, 0), Vector(-3, 22.3, 0)), False)
sketch5.addGeometry(Part.LineSegment(Vector(-3, 22.3, 0), Vector(-2.4, 23, 0)), False)
sketch5.addGeometry(Part.LineSegment(Vector(-0.4, 23, 0), Vector(-2.4, 23, 0)), False)
sketch5.addGeometry(Part.LineSegment(Vector(-2.4, 23, 0), Vector(-1.6, 22.3, 0)), False)
sketch5.addGeometry(Part.LineSegment(Vector(-1.6, 22.3, 0), Vector(-1, 22.3, 0)), False)
sketch5.addGeometry(Part.LineSegment(Vector(-1, 22.3, 0), Vector(-0.4, 23, 0)), False)
sketch5.addGeometry(Part.LineSegment(Vector(1.6, 23, 0), Vector(-0.4, 23, 0)), False)
sketch5.addGeometry(Part.LineSegment(Vector(-0.4, 23, 0), Vector(0.4, 22.3, 0)), False)
sketch5.addGeometry(Part.LineSegment(Vector(0.4, 22.3, 0), Vector(1, 22.3, 0)), False)
sketch5.addGeometry(Part.LineSegment(Vector(1, 22.3, 0), Vector(1.6, 23, 0)), False)
sketch5.addGeometry(Part.LineSegment(Vector(3.6, 23, 0), Vector(1.6, 23, 0)), False)
sketch5.addGeometry(Part.LineSegment(Vector(1.6, 23, 0), Vector(2.4, 22.3, 0)), False)
sketch5.addGeometry(Part.LineSegment(Vector(2.4, 22.3, 0), Vector(3, 22.3, 0)), False)
sketch5.addGeometry(Part.LineSegment(Vector(3, 22.3, 0), Vector(3.6, 23, 0)), False)
sketch5.addGeometry(Part.LineSegment(Vector(5.7, 23, 0), Vector(3.6, 23, 0)), False)
sketch5.addGeometry(Part.LineSegment(Vector(3.6, 23, 0), Vector(4.4, 22.3, 0)), False)
sketch5.addGeometry(Part.LineSegment(Vector(4.4, 22.3, 0), Vector(5, 22.3, 0)), False)
sketch5.addGeometry(Part.LineSegment(Vector(5, 22.3, 0), Vector(5.7, 23, 0)), False)
sketch5.addGeometry(Part.LineSegment(Vector(7.7, 23, 0), Vector(5.7, 23, 0)), False)
sketch5.addGeometry(Part.LineSegment(Vector(5.7, 23, 0), Vector(6.4, 22.3, 0)), False)
sketch5.addGeometry(Part.LineSegment(Vector(6.4, 22.3, 0), Vector(7, 22.3, 0)), False)
sketch5.addGeometry(Part.LineSegment(Vector(7, 22.3, 0), Vector(7.7, 23, 0)), False)
sketch5.addGeometry(Part.LineSegment(Vector(9.7, 23, 0), Vector(7.7, 23, 0)), False)
sketch5.addGeometry(Part.LineSegment(Vector(7.7, 23, 0), Vector(8.4, 22.3, 0)), False)
sketch5.addGeometry(Part.LineSegment(Vector(8.4, 22.3, 0), Vector(9.1, 22.3, 0)), False)
sketch5.addGeometry(Part.LineSegment(Vector(9.1, 22.3, 0), Vector(9.7, 23, 0)), False)
sketch5.addGeometry(Part.LineSegment(Vector(11.7, 23, 0), Vector(9.7, 23, 0)), False)
sketch5.addGeometry(Part.LineSegment(Vector(9.7, 23, 0), Vector(10.5, 22.3, 0)), False)
sketch5.addGeometry(Part.LineSegment(Vector(10.5, 22.3, 0), Vector(11.1, 22.3, 0)), False)
sketch5.addGeometry(Part.LineSegment(Vector(11.1, 22.3, 0), Vector(11.7, 23, 0)), False)
sketch5.addGeometry(Part.LineSegment(Vector(13.6, 23, 0), Vector(11.7, 23, 0)), False)
sketch5.addGeometry(Part.LineSegment(Vector(11.7, 23, 0), Vector(12.5, 22.3, 0)), False)
sketch5.addGeometry(Part.LineSegment(Vector(12.5, 22.3, 0), Vector(13, 22.3, 0)), False)
sketch5.addGeometry(Part.LineSegment(Vector(13, 22.3, 0), Vector(13.6, 23, 0)), False)
sketch5.addConstraint(Sketcher.Constraint("Coincident", 0, 2, 1, 1))
sketch5.addConstraint(Sketcher.Constraint("Coincident", 1, 2, 2, 1))
sketch5.addConstraint(Sketcher.Constraint("Coincident", 2, 2, 3, 1))
sketch5.addConstraint(Sketcher.Constraint("Coincident", 3, 2, 0, 1))
sketch5.addConstraint(Sketcher.Constraint("Coincident", 4, 2, 5, 1))
sketch5.addConstraint(Sketcher.Constraint("Coincident", 5, 2, 6, 1))
sketch5.addConstraint(Sketcher.Constraint("Coincident", 6, 2, 7, 1))
sketch5.addConstraint(Sketcher.Constraint("Coincident", 7, 2, 4, 1))
sketch5.addConstraint(Sketcher.Constraint("Coincident", 8, 2, 9, 1))
sketch5.addConstraint(Sketcher.Constraint("Coincident", 9, 2, 10, 1))
sketch5.addConstraint(Sketcher.Constraint("Coincident", 10, 2, 11, 1))
sketch5.addConstraint(Sketcher.Constraint("Coincident", 11, 2, 8, 1))
sketch5.addConstraint(Sketcher.Constraint("Coincident", 12, 2, 13, 1))
sketch5.addConstraint(Sketcher.Constraint("Coincident", 13, 2, 14, 1))
sketch5.addConstraint(Sketcher.Constraint("Coincident", 14, 2, 15, 1))
sketch5.addConstraint(Sketcher.Constraint("Coincident", 15, 2, 12, 1))
sketch5.addConstraint(Sketcher.Constraint("Coincident", 16, 2, 17, 1))
sketch5.addConstraint(Sketcher.Constraint("Coincident", 17, 2, 18, 1))
sketch5.addConstraint(Sketcher.Constraint("Coincident", 18, 2, 19, 1))
sketch5.addConstraint(Sketcher.Constraint("Coincident", 19, 2, 16, 1))
sketch5.addConstraint(Sketcher.Constraint("Coincident", 20, 2, 21, 1))
sketch5.addConstraint(Sketcher.Constraint("Coincident", 21, 2, 22, 1))
sketch5.addConstraint(Sketcher.Constraint("Coincident", 22, 2, 23, 1))
sketch5.addConstraint(Sketcher.Constraint("Coincident", 23, 2, 20, 1))
sketch5.addConstraint(Sketcher.Constraint("Coincident", 24, 2, 25, 1))
sketch5.addConstraint(Sketcher.Constraint("Coincident", 25, 2, 26, 1))
sketch5.addConstraint(Sketcher.Constraint("Coincident", 26, 2, 27, 1))
sketch5.addConstraint(Sketcher.Constraint("Coincident", 27, 2, 24, 1))
sketch5.addConstraint(Sketcher.Constraint("Coincident", 28, 2, 29, 1))
sketch5.addConstraint(Sketcher.Constraint("Coincident", 29, 2, 30, 1))
sketch5.addConstraint(Sketcher.Constraint("Coincident", 30, 2, 31, 1))
sketch5.addConstraint(Sketcher.Constraint("Coincident", 31, 2, 28, 1))
sketch5.addConstraint(Sketcher.Constraint("Coincident", 32, 2, 33, 1))
sketch5.addConstraint(Sketcher.Constraint("Coincident", 33, 2, 34, 1))
sketch5.addConstraint(Sketcher.Constraint("Coincident", 34, 2, 35, 1))
sketch5.addConstraint(Sketcher.Constraint("Coincident", 35, 2, 32, 1))
sketch5.addConstraint(Sketcher.Constraint("Coincident", 36, 2, 37, 1))
sketch5.addConstraint(Sketcher.Constraint("Coincident", 37, 2, 38, 1))
sketch5.addConstraint(Sketcher.Constraint("Coincident", 38, 2, 39, 1))
sketch5.addConstraint(Sketcher.Constraint("Coincident", 39, 2, 36, 1))
sketch5.addConstraint(Sketcher.Constraint("Horizontal", 0))
sketch5.addConstraint(Sketcher.Constraint("Horizontal", 2))
sketch5.addConstraint(Sketcher.Constraint("Horizontal", 4))
sketch5.addConstraint(Sketcher.Constraint("Horizontal", 6))
sketch5.addConstraint(Sketcher.Constraint("Horizontal", 8))
sketch5.addConstraint(Sketcher.Constraint("Horizontal", 10))
sketch5.addConstraint(Sketcher.Constraint("Horizontal", 12))
sketch5.addConstraint(Sketcher.Constraint("Horizontal", 14))
sketch5.addConstraint(Sketcher.Constraint("Horizontal", 16))
sketch5.addConstraint(Sketcher.Constraint("Horizontal", 18))
sketch5.addConstraint(Sketcher.Constraint("Horizontal", 20))
sketch5.addConstraint(Sketcher.Constraint("Horizontal", 22))
sketch5.addConstraint(Sketcher.Constraint("Horizontal", 24))
sketch5.addConstraint(Sketcher.Constraint("Horizontal", 26))
sketch5.addConstraint(Sketcher.Constraint("Horizontal", 28))
sketch5.addConstraint(Sketcher.Constraint("Horizontal", 30))
sketch5.addConstraint(Sketcher.Constraint("Horizontal", 32))
sketch5.addConstraint(Sketcher.Constraint("Horizontal", 34))
sketch5.addConstraint(Sketcher.Constraint("Horizontal", 36))
sketch5.addConstraint(Sketcher.Constraint("Horizontal", 38))
sketch5.addConstraint(Sketcher.Constraint("Coincident", 4, 2, 3, 2))
sketch5.addConstraint(Sketcher.Constraint("Coincident", 8, 2, 7, 2))
sketch5.addConstraint(Sketcher.Constraint("Coincident", 12, 2, 11, 2))
sketch5.addConstraint(Sketcher.Constraint("Coincident", 16, 2, 15, 2))
sketch5.addConstraint(Sketcher.Constraint("Coincident", 20, 2, 19, 2))
sketch5.addConstraint(Sketcher.Constraint("Coincident", 24, 2, 23, 2))
sketch5.addConstraint(Sketcher.Constraint("Coincident", 28, 2, 27, 2))
sketch5.addConstraint(Sketcher.Constraint("Coincident", 32, 2, 31, 2))
sketch5.addConstraint(Sketcher.Constraint("Coincident", 36, 2, 35, 2))
sketch5.addConstraint(Sketcher.Constraint("Perpendicular", 1, 3))
sketch5.addConstraint(Sketcher.Constraint("Perpendicular", 3, 5))
sketch5.addConstraint(Sketcher.Constraint("Perpendicular", 5, 7))
sketch5.addConstraint(Sketcher.Constraint("Perpendicular", 7, 9))
sketch5.addConstraint(Sketcher.Constraint("Perpendicular", 9, 11))
sketch5.addConstraint(Sketcher.Constraint("Perpendicular", 11, 13))
sketch5.addConstraint(Sketcher.Constraint("Perpendicular", 13, 15))
sketch5.addConstraint(Sketcher.Constraint("Perpendicular", 15, 17))
sketch5.addConstraint(Sketcher.Constraint("Perpendicular", 17, 19))
sketch5.addConstraint(Sketcher.Constraint("Perpendicular", 19, 21))
sketch5.addConstraint(Sketcher.Constraint("Perpendicular", 21, 23))
sketch5.addConstraint(Sketcher.Constraint("Perpendicular", 23, 25))
sketch5.addConstraint(Sketcher.Constraint("Perpendicular", 25, 27))
sketch5.addConstraint(Sketcher.Constraint("Perpendicular", 27, 29))
sketch5.addConstraint(Sketcher.Constraint("Perpendicular", 29, 31))
sketch5.addConstraint(Sketcher.Constraint("Perpendicular", 31, 33))
sketch5.addConstraint(Sketcher.Constraint("Perpendicular", 33, 35))
sketch5.addConstraint(Sketcher.Constraint("Perpendicular", 35, 37))
sketch5.addConstraint(Sketcher.Constraint("Horizontal", 2, 2, 5, 2))
sketch5.addConstraint(Sketcher.Constraint("Horizontal", 6, 2, 9, 2))
sketch5.addConstraint(Sketcher.Constraint("Horizontal", 10, 2, 13, 2))
sketch5.addConstraint(Sketcher.Constraint("Horizontal", 14, 2, 17, 2))
sketch5.addConstraint(Sketcher.Constraint("Horizontal", 18, 2, 21, 2))
sketch5.addConstraint(Sketcher.Constraint("Horizontal", 22, 2, 25, 2))
sketch5.addConstraint(Sketcher.Constraint("Horizontal", 26, 2, 29, 2))
sketch5.addConstraint(Sketcher.Constraint("Horizontal", 30, 2, 33, 2))
sketch5.addConstraint(Sketcher.Constraint("Horizontal", 34, 2, 37, 2))
sketch5.addConstraint(Sketcher.Constraint("Equal", 0, 4))
sketch5.addConstraint(Sketcher.Constraint("Equal", 4, 8))
sketch5.addConstraint(Sketcher.Constraint("Equal", 8, 12))
sketch5.addConstraint(Sketcher.Constraint("Equal", 12, 16))
sketch5.addConstraint(Sketcher.Constraint("Equal", 16, 20))
sketch5.addConstraint(Sketcher.Constraint("Equal", 20, 24))
sketch5.addConstraint(Sketcher.Constraint("Equal", 24, 28))
sketch5.addConstraint(Sketcher.Constraint("Equal", 28, 32))
sketch5.addConstraint(Sketcher.Constraint("DistanceY", -1, 1, 0, 2, 23.0))
sketch5.addConstraint(Sketcher.Constraint("DistanceX", 38, 1, 38, 2, 0.5147))
sketch5.addConstraint(Sketcher.Constraint("DistanceX", 0, 2, 0, 1, 2.012461))
sketch5.addConstraint(Sketcher.Constraint("DistanceX", 6, 2, -1, 1, 3.018701))
sketch5.addConstraint(Sketcher.Constraint("Distance", 39, 0.931742))
sketch5.addConstraint(Sketcher.Constraint("DistanceX", 2, 1, 2, 2, 0.611375))
sketch5.addConstraint(Sketcher.Constraint("DistanceX", 36, 2, 36, 1, 1.912307))
pocket3 = body.newObject("PartDesign::Pocket", "Pocket002")
pocket3.Profile = sketch5
pocket3.Type = "ThroughAll"

doc.recompute()
